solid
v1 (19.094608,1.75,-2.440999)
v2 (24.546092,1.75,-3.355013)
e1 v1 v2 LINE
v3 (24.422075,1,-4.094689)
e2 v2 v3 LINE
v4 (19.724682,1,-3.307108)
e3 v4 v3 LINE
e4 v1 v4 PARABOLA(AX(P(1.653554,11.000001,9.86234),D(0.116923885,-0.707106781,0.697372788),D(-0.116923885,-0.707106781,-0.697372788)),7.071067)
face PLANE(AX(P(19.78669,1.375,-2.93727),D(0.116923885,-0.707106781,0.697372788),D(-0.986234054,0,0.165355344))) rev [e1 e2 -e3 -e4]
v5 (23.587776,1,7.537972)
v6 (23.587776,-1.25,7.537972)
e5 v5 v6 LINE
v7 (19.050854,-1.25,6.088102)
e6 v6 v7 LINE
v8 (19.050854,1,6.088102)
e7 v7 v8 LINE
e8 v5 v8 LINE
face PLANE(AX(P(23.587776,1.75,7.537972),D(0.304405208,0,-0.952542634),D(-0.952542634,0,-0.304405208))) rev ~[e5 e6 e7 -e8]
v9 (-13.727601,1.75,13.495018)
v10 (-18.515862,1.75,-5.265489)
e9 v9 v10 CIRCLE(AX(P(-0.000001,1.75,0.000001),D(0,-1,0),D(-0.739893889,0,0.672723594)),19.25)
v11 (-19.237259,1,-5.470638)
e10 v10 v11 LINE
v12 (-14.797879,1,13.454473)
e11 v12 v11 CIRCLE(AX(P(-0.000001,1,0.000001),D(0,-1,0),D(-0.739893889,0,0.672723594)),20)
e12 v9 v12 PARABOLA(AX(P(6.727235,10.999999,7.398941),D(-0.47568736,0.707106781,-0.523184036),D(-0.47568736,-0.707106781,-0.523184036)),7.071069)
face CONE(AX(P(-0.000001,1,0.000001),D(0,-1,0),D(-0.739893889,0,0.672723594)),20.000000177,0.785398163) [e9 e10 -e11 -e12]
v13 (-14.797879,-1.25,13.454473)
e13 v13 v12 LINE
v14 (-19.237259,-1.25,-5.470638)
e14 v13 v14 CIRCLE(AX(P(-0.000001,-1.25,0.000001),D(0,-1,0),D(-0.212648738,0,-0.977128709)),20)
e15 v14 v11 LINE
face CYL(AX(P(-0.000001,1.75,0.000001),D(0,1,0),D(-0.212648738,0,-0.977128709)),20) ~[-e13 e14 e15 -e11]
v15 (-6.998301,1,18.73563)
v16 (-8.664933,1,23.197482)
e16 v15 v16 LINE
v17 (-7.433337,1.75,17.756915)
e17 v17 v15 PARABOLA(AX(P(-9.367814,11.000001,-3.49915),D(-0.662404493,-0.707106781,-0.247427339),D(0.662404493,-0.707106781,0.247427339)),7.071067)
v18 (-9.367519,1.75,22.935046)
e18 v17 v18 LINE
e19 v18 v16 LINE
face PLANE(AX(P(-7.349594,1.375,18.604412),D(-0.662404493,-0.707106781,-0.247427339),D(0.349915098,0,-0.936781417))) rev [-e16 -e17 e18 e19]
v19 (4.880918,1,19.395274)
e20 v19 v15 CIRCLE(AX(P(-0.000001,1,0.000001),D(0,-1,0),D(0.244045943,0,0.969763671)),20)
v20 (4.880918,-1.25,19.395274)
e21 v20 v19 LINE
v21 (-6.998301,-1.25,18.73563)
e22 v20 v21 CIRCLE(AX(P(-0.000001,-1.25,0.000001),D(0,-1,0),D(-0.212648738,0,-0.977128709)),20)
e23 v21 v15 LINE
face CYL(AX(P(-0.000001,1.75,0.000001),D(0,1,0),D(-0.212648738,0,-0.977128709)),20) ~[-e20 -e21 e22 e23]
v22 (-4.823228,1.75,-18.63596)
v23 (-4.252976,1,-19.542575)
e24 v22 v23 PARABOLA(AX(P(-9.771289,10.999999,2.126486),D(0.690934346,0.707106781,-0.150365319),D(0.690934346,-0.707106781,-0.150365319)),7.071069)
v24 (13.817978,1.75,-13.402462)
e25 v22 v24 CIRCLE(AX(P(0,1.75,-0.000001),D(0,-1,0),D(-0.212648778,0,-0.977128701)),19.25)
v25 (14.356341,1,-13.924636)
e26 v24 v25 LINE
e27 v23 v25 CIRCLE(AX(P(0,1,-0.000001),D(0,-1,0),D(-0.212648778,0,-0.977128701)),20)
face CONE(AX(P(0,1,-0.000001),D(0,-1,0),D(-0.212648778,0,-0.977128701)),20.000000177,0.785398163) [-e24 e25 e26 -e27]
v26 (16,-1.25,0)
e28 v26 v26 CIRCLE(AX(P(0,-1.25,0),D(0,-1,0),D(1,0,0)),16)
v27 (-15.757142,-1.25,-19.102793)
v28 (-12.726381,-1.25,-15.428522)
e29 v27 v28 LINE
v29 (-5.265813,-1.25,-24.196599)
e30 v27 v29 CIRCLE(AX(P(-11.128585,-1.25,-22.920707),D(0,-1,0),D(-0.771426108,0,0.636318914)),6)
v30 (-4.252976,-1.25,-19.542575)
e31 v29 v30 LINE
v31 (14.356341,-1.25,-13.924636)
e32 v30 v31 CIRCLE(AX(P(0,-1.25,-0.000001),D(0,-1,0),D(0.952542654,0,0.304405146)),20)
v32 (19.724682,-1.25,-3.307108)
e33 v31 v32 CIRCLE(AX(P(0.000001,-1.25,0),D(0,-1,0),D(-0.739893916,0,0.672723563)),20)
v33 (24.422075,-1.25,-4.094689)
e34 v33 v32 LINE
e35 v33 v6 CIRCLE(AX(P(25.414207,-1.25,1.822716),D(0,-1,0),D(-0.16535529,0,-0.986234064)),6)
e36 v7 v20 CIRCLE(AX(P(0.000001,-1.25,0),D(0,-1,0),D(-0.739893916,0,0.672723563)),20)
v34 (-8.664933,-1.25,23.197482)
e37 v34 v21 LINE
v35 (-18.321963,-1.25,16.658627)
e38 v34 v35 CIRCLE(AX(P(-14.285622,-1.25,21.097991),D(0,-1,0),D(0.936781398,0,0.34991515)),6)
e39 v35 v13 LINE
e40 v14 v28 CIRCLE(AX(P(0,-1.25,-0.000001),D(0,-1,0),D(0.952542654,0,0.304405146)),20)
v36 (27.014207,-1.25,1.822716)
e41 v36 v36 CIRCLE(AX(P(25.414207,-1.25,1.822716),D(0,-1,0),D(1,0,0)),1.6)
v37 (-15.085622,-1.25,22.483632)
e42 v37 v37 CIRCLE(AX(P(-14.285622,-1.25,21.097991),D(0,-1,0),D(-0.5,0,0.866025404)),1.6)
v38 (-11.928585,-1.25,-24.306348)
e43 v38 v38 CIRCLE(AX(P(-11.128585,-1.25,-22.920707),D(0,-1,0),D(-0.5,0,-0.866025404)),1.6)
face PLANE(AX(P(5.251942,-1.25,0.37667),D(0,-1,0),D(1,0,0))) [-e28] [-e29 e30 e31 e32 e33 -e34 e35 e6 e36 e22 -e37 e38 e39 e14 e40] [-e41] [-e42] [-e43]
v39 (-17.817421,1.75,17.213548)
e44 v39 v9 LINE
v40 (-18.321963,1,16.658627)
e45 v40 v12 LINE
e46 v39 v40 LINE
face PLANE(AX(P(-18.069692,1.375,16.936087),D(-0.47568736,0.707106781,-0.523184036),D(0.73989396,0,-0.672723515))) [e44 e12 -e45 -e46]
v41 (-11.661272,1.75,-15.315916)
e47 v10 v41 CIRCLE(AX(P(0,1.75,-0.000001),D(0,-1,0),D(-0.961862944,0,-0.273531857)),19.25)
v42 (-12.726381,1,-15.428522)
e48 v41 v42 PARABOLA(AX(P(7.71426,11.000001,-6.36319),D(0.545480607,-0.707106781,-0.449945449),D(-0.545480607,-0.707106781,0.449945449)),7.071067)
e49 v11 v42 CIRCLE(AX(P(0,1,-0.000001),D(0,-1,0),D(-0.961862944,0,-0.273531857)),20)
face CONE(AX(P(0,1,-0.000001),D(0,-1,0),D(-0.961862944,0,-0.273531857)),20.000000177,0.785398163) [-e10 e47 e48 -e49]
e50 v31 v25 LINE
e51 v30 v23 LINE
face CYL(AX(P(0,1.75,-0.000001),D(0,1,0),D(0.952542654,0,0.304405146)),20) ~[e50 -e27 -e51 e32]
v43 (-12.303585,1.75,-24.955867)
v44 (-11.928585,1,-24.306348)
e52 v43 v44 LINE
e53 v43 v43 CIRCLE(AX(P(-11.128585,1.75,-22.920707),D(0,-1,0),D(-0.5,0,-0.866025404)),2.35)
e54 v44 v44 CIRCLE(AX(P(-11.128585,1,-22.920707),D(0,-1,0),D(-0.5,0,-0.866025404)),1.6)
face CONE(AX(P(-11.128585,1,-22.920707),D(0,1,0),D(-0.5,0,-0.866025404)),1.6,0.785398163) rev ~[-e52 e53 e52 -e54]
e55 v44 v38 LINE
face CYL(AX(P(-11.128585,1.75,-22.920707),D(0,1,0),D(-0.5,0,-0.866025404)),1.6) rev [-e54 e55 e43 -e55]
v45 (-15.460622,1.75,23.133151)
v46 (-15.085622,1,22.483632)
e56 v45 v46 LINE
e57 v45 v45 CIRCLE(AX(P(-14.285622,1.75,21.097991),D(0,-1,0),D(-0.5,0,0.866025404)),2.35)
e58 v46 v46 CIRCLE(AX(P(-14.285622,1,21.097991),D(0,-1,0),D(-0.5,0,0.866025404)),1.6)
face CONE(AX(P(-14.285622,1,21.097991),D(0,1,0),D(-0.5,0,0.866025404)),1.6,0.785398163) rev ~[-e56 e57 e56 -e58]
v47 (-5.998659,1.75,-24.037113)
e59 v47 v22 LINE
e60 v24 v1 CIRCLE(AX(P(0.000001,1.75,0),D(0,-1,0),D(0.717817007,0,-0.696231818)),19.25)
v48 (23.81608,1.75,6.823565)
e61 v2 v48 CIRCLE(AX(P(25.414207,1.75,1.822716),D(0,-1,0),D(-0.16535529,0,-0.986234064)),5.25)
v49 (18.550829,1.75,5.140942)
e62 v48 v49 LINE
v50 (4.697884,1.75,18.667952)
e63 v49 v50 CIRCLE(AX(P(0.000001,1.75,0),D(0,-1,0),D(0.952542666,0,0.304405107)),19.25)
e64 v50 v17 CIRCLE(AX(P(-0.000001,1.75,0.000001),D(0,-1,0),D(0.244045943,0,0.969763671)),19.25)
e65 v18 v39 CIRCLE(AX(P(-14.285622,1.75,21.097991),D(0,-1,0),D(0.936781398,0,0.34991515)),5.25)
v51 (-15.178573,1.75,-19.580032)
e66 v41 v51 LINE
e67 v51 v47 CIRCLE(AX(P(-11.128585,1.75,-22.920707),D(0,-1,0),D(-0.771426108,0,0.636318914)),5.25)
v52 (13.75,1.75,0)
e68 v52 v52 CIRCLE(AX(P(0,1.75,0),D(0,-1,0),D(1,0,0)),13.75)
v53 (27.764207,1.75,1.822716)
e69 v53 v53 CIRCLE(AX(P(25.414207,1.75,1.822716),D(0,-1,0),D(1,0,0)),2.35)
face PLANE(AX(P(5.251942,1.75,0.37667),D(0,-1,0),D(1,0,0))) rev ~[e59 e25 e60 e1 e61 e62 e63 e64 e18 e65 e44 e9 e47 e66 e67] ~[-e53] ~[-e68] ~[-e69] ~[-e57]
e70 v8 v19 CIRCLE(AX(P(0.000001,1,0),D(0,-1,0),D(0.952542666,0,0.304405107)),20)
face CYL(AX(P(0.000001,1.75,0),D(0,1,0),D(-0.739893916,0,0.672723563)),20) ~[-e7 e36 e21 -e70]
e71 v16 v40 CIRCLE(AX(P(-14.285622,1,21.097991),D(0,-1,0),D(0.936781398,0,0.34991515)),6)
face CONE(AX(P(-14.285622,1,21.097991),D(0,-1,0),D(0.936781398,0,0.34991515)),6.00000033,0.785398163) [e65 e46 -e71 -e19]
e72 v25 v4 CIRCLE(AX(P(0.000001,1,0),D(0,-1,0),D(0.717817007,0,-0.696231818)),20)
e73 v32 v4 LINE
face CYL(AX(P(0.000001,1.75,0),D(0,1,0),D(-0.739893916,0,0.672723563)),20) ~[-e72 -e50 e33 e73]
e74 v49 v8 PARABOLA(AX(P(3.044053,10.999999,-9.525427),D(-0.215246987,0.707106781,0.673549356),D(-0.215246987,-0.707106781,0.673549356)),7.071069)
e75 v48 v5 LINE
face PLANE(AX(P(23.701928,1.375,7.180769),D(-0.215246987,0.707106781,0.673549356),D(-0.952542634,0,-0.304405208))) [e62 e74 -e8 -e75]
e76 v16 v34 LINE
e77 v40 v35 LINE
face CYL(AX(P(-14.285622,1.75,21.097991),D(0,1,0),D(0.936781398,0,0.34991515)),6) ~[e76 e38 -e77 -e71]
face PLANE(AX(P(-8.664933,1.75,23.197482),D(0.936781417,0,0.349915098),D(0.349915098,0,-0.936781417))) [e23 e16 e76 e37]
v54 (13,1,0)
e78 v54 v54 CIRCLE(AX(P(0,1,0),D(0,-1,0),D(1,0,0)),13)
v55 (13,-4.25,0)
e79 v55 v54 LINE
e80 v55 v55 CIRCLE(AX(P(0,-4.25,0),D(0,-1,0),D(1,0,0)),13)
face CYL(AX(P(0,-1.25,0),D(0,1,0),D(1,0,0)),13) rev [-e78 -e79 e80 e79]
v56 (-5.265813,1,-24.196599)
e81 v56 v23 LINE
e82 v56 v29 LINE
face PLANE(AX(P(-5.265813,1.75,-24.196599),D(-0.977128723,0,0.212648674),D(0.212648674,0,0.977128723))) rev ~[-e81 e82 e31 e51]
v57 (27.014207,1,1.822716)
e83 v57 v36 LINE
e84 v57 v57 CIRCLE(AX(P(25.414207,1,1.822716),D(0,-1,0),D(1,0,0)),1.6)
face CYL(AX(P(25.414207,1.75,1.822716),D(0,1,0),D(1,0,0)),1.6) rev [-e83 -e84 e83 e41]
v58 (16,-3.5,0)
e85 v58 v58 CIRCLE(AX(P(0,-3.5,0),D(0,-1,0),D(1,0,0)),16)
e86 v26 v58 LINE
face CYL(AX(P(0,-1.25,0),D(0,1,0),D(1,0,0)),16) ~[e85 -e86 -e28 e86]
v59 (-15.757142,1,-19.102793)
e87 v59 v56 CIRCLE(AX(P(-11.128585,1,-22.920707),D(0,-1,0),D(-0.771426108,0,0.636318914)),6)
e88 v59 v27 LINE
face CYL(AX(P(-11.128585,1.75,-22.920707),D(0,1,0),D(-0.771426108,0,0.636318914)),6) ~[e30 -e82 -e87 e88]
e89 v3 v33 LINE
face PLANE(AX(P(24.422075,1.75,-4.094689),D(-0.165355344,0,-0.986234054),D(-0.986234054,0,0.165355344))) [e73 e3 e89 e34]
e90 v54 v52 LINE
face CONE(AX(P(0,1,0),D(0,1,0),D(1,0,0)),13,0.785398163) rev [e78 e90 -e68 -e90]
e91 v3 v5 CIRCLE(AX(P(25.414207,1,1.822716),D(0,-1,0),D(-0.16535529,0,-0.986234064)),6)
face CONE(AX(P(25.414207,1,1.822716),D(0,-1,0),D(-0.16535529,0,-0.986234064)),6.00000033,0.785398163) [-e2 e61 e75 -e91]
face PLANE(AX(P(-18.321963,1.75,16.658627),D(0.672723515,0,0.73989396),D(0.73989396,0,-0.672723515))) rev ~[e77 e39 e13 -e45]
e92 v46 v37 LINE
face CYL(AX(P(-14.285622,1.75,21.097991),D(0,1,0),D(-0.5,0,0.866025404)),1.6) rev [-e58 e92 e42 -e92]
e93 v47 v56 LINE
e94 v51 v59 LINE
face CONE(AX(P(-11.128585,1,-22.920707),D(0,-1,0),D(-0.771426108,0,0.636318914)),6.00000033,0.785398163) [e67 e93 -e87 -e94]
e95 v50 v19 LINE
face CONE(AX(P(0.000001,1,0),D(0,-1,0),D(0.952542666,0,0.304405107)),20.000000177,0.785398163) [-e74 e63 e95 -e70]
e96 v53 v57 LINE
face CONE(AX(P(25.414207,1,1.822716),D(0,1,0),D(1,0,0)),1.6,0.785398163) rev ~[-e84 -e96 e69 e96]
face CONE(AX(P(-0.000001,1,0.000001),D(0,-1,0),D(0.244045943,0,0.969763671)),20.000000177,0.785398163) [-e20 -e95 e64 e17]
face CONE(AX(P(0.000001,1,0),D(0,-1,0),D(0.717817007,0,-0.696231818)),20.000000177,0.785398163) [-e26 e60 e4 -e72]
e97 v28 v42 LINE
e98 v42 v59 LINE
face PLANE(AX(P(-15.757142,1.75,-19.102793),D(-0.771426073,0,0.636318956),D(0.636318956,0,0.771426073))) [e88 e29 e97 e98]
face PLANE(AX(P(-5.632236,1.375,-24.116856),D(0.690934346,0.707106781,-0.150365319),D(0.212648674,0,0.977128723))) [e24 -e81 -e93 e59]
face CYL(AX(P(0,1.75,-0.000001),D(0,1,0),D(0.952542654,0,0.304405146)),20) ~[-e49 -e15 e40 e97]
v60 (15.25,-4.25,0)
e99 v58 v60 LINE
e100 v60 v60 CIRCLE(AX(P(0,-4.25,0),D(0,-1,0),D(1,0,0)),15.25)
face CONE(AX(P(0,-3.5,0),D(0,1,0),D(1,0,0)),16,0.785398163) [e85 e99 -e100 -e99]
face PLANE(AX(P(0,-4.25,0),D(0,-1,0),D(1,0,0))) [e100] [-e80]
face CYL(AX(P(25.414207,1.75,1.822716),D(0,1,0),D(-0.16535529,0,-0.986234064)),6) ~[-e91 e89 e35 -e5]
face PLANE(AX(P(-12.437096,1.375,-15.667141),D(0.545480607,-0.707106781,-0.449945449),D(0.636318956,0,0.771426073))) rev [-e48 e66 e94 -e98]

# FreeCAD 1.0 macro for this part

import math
import FreeCAD as App
import Part
import Sketcher
from FreeCAD import Vector


def edges_at(feature, points):
    """Names of the edges that pass closest to the given points."""
    edges = feature.Shape.Edges
    near = lambda p: min(range(len(edges)), key=lambda i: edges[i].distToShape(Part.Vertex(*p))[0])
    return sorted({f"Edge{near(p) + 1}" for p in points})

doc = App.newDocument("Part")
body = doc.addObject("PartDesign::Body", "Body")

sketch1 = body.newObject("Sketcher::SketchObject", "Sketch")
sketch1.AttachmentSupport = (doc.getObject("XZ_Plane"), [""])
sketch1.MapMode = "FlatFace"
sketch1.AttachmentOffset = App.Placement(Vector(0, 0, -1.75), App.Rotation())
sketch1.addGeometry([
    Part.ArcOfCircle(Part.Circle(Vector(0, 0, 0), Vector(0, 0, 1), 20), math.radians(18), math.radians(350)),
    Part.LineSegment(Vector(19.7, -3.3, 0), Vector(24.4, -4.1, 0)),
    Part.ArcOfCircle(Part.Circle(Vector(25.4, 1.8, 0), Vector(0, 0, 1), 6), math.radians(-100), math.radians(108)),
    Part.LineSegment(Vector(23.6, 7.5, 0), Vector(19.1, 6.1, 0)),
    Part.Circle(Vector(0, 0, 0), Vector(0, 0, 1), 13),
    Part.Circle(Vector(25.4, 1.8, 0), Vector(0, 0, 1), 1.6),
], False)
sketch1.addConstraint([
    Sketcher.Constraint("Coincident", 0, 2, 1, 1),
    Sketcher.Constraint("Tangent", 1, 2, 2, 1),
    Sketcher.Constraint("Tangent", 2, 2, 3, 1),
    Sketcher.Constraint("Coincident", 3, 2, 0, 1),
    Sketcher.Constraint("Coincident", 0, 3, -1, 1),
    Sketcher.Constraint("Coincident", 4, 3, -1, 1),
    Sketcher.Constraint("Coincident", 5, 3, 2, 3),
    Sketcher.Constraint("Equal", 1, 3),
    Sketcher.Constraint("Diameter", 4, 26.0),
    Sketcher.Constraint("Radius", 0, 20.0),
    Sketcher.Constraint("Radius", 2, 6.0),
    Sketcher.Constraint("Diameter", 5, 3.2),
    Sketcher.Constraint("DistanceX", 2, 2, 1, 2, 0.834299),
    Sketcher.Constraint("Distance", 1, 4.762961),
    Sketcher.Constraint("DistanceX", -1, 1, 0, 2, 19.724681),
])
pad1 = body.newObject("PartDesign::Pad", "Pad")
pad1.Profile = sketch1
pad1.Length = 3
doc.recompute()

polarpattern = body.newObject("PartDesign::PolarPattern", "PolarPattern")
polarpattern.Originals = [pad1]
polarpattern.Axis = (doc.getObject("Y_Axis"), [""])
polarpattern.Angle = 360
polarpattern.Occurrences = 3
body.Tip = polarpattern

sketch2 = body.newObject("Sketcher::SketchObject", "Sketch001")
sketch2.AttachmentSupport = (doc.getObject("XZ_Plane"), [""])
sketch2.MapMode = "FlatFace"
sketch2.AttachmentOffset = App.Placement(Vector(0, 0, 1.25), App.Rotation())
sketch2.addGeometry([
    Part.Circle(Vector(0, 0, 0), Vector(0, 0, 1), 16),
    Part.Circle(Vector(0, 0, 0), Vector(0, 0, 1), 13),
], False)
sketch2.addConstraint([
    Sketcher.Constraint("Coincident", 0, 3, -1, 1),
    Sketcher.Constraint("Coincident", 1, 3, -1, 1),
    Sketcher.Constraint("Diameter", 0, 32.0),
    Sketcher.Constraint("Diameter", 1, 26.0),
])
pad2 = body.newObject("PartDesign::Pad", "Pad001")
pad2.Profile = sketch2
pad2.Length = 3
doc.recompute()

chamfer = body.newObject("PartDesign::Chamfer", "Chamfer")
chamfer.Base = (pad2, edges_at(pad2, [
    (-16, -4.25, 0),
    (31.399, 1.75, 2.252),
    (22.073, 1.75, -3.701),
    (5.78, 1.75, -19.147),
    (-4.759, 1.75, -21.87),
    (-13.749, 1.75, -28.318),
    (-14.242, 1.75, -17.266),
    (-19.471, 1.75, 4.568),
    (-16.56, 1.75, 15.057),
    (-17.65, 1.75, 26.066),
    (-7.832, 1.75, 20.967),
    (13.691, 1.75, 14.579),
    (21.319, 1.75, 6.813),
    (-13, 1.75, 0),
    (-13, 1.75, 0),
    (-13, 1.75, 0),
    (23.814, 1.75, 1.823),
    (-13.486, 1.75, 19.712),
    (-10.329, 1.75, -21.535),
]))
chamfer.Size = 0.75

doc.recompute()
